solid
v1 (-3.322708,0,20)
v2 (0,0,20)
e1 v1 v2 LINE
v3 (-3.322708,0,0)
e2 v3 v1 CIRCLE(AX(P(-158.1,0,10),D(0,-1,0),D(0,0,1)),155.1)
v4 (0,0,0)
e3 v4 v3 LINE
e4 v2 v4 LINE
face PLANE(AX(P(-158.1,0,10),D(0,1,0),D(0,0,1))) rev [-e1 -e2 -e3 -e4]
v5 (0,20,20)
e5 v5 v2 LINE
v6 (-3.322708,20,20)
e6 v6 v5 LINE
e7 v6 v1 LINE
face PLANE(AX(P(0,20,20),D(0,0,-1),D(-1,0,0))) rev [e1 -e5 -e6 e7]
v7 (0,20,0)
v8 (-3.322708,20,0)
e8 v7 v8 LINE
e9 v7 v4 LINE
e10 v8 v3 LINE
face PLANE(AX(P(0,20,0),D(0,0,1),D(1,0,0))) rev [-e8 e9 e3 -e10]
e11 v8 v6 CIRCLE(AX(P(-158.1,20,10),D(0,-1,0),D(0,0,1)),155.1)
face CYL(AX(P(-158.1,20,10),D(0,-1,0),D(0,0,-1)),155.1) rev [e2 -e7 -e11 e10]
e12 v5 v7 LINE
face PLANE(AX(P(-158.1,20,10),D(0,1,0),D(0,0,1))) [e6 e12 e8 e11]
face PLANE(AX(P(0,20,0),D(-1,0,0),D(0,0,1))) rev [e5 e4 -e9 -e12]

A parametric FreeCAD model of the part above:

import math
import FreeCAD as App
import Part
import Sketcher

V = App.Vector
Q = App.Units.Quantity

doc = App.newDocument("Part")
body = doc.addObject("PartDesign::Body", "Body")

# Sketch on XZ plane
sketch1 = body.newObject("Sketcher::SketchObject", "Sketch")
sketch1.AttachmentSupport = (doc.getObject("XZ_Plane"), [""])
sketch1.MapMode = "FlatFace"
sketch1.addGeometry(Part.LineSegment(V(0, 20, 0), V(0, 0, 0)), False)
sketch1.addGeometry(Part.LineSegment(V(0, 0, 0), V(-3.322708, 0, 0)), False)
sketch1.addGeometry(Part.ArcOfCircle(Part.Circle(V(-158.1, 10, 0), V(0, 0, 1), 155.1), math.radians(-3.696683), math.radians(3.696683)), False)
sketch1.addGeometry(Part.LineSegment(V(-3.322708, 20, 0), V(0, 20, 0)), False)
sketch1.addConstraint(Sketcher.Constraint("Coincident", 0, 2, 1, 1))
sketch1.addConstraint(Sketcher.Constraint("Coincident", 1, 2, 2, 1))
sketch1.addConstraint(Sketcher.Constraint("Coincident", 2, 2, 3, 1))
sketch1.addConstraint(Sketcher.Constraint("Coincident", 3, 2, 0, 1))
sketch1.addConstraint(Sketcher.Constraint("Vertical", 0))
sketch1.addConstraint(Sketcher.Constraint("Horizontal", 1))
sketch1.addConstraint(Sketcher.Constraint("Horizontal", 3))
sketch1.addConstraint(Sketcher.Constraint("Coincident", 0, 2, -1, 1))
sketch1.addConstraint(Sketcher.Constraint("Vertical", 1, 2, 2, 2))
sketch1.addConstraint(Sketcher.Constraint("Radius", 2, Q("155.1 mm")))
sketch1.addConstraint(Sketcher.Constraint("DistanceY", 0, 2, 0, 1, Q("20 mm")))
sketch1.addConstraint(Sketcher.Constraint("DistanceX", 2, 3, -1, 1, Q("158.1 mm")))
pad1 = body.newObject("PartDesign::Pad", "Pad")
pad1.Profile = sketch1
pad1.Length = 20
pad1.Reversed = True

doc.recompute()
